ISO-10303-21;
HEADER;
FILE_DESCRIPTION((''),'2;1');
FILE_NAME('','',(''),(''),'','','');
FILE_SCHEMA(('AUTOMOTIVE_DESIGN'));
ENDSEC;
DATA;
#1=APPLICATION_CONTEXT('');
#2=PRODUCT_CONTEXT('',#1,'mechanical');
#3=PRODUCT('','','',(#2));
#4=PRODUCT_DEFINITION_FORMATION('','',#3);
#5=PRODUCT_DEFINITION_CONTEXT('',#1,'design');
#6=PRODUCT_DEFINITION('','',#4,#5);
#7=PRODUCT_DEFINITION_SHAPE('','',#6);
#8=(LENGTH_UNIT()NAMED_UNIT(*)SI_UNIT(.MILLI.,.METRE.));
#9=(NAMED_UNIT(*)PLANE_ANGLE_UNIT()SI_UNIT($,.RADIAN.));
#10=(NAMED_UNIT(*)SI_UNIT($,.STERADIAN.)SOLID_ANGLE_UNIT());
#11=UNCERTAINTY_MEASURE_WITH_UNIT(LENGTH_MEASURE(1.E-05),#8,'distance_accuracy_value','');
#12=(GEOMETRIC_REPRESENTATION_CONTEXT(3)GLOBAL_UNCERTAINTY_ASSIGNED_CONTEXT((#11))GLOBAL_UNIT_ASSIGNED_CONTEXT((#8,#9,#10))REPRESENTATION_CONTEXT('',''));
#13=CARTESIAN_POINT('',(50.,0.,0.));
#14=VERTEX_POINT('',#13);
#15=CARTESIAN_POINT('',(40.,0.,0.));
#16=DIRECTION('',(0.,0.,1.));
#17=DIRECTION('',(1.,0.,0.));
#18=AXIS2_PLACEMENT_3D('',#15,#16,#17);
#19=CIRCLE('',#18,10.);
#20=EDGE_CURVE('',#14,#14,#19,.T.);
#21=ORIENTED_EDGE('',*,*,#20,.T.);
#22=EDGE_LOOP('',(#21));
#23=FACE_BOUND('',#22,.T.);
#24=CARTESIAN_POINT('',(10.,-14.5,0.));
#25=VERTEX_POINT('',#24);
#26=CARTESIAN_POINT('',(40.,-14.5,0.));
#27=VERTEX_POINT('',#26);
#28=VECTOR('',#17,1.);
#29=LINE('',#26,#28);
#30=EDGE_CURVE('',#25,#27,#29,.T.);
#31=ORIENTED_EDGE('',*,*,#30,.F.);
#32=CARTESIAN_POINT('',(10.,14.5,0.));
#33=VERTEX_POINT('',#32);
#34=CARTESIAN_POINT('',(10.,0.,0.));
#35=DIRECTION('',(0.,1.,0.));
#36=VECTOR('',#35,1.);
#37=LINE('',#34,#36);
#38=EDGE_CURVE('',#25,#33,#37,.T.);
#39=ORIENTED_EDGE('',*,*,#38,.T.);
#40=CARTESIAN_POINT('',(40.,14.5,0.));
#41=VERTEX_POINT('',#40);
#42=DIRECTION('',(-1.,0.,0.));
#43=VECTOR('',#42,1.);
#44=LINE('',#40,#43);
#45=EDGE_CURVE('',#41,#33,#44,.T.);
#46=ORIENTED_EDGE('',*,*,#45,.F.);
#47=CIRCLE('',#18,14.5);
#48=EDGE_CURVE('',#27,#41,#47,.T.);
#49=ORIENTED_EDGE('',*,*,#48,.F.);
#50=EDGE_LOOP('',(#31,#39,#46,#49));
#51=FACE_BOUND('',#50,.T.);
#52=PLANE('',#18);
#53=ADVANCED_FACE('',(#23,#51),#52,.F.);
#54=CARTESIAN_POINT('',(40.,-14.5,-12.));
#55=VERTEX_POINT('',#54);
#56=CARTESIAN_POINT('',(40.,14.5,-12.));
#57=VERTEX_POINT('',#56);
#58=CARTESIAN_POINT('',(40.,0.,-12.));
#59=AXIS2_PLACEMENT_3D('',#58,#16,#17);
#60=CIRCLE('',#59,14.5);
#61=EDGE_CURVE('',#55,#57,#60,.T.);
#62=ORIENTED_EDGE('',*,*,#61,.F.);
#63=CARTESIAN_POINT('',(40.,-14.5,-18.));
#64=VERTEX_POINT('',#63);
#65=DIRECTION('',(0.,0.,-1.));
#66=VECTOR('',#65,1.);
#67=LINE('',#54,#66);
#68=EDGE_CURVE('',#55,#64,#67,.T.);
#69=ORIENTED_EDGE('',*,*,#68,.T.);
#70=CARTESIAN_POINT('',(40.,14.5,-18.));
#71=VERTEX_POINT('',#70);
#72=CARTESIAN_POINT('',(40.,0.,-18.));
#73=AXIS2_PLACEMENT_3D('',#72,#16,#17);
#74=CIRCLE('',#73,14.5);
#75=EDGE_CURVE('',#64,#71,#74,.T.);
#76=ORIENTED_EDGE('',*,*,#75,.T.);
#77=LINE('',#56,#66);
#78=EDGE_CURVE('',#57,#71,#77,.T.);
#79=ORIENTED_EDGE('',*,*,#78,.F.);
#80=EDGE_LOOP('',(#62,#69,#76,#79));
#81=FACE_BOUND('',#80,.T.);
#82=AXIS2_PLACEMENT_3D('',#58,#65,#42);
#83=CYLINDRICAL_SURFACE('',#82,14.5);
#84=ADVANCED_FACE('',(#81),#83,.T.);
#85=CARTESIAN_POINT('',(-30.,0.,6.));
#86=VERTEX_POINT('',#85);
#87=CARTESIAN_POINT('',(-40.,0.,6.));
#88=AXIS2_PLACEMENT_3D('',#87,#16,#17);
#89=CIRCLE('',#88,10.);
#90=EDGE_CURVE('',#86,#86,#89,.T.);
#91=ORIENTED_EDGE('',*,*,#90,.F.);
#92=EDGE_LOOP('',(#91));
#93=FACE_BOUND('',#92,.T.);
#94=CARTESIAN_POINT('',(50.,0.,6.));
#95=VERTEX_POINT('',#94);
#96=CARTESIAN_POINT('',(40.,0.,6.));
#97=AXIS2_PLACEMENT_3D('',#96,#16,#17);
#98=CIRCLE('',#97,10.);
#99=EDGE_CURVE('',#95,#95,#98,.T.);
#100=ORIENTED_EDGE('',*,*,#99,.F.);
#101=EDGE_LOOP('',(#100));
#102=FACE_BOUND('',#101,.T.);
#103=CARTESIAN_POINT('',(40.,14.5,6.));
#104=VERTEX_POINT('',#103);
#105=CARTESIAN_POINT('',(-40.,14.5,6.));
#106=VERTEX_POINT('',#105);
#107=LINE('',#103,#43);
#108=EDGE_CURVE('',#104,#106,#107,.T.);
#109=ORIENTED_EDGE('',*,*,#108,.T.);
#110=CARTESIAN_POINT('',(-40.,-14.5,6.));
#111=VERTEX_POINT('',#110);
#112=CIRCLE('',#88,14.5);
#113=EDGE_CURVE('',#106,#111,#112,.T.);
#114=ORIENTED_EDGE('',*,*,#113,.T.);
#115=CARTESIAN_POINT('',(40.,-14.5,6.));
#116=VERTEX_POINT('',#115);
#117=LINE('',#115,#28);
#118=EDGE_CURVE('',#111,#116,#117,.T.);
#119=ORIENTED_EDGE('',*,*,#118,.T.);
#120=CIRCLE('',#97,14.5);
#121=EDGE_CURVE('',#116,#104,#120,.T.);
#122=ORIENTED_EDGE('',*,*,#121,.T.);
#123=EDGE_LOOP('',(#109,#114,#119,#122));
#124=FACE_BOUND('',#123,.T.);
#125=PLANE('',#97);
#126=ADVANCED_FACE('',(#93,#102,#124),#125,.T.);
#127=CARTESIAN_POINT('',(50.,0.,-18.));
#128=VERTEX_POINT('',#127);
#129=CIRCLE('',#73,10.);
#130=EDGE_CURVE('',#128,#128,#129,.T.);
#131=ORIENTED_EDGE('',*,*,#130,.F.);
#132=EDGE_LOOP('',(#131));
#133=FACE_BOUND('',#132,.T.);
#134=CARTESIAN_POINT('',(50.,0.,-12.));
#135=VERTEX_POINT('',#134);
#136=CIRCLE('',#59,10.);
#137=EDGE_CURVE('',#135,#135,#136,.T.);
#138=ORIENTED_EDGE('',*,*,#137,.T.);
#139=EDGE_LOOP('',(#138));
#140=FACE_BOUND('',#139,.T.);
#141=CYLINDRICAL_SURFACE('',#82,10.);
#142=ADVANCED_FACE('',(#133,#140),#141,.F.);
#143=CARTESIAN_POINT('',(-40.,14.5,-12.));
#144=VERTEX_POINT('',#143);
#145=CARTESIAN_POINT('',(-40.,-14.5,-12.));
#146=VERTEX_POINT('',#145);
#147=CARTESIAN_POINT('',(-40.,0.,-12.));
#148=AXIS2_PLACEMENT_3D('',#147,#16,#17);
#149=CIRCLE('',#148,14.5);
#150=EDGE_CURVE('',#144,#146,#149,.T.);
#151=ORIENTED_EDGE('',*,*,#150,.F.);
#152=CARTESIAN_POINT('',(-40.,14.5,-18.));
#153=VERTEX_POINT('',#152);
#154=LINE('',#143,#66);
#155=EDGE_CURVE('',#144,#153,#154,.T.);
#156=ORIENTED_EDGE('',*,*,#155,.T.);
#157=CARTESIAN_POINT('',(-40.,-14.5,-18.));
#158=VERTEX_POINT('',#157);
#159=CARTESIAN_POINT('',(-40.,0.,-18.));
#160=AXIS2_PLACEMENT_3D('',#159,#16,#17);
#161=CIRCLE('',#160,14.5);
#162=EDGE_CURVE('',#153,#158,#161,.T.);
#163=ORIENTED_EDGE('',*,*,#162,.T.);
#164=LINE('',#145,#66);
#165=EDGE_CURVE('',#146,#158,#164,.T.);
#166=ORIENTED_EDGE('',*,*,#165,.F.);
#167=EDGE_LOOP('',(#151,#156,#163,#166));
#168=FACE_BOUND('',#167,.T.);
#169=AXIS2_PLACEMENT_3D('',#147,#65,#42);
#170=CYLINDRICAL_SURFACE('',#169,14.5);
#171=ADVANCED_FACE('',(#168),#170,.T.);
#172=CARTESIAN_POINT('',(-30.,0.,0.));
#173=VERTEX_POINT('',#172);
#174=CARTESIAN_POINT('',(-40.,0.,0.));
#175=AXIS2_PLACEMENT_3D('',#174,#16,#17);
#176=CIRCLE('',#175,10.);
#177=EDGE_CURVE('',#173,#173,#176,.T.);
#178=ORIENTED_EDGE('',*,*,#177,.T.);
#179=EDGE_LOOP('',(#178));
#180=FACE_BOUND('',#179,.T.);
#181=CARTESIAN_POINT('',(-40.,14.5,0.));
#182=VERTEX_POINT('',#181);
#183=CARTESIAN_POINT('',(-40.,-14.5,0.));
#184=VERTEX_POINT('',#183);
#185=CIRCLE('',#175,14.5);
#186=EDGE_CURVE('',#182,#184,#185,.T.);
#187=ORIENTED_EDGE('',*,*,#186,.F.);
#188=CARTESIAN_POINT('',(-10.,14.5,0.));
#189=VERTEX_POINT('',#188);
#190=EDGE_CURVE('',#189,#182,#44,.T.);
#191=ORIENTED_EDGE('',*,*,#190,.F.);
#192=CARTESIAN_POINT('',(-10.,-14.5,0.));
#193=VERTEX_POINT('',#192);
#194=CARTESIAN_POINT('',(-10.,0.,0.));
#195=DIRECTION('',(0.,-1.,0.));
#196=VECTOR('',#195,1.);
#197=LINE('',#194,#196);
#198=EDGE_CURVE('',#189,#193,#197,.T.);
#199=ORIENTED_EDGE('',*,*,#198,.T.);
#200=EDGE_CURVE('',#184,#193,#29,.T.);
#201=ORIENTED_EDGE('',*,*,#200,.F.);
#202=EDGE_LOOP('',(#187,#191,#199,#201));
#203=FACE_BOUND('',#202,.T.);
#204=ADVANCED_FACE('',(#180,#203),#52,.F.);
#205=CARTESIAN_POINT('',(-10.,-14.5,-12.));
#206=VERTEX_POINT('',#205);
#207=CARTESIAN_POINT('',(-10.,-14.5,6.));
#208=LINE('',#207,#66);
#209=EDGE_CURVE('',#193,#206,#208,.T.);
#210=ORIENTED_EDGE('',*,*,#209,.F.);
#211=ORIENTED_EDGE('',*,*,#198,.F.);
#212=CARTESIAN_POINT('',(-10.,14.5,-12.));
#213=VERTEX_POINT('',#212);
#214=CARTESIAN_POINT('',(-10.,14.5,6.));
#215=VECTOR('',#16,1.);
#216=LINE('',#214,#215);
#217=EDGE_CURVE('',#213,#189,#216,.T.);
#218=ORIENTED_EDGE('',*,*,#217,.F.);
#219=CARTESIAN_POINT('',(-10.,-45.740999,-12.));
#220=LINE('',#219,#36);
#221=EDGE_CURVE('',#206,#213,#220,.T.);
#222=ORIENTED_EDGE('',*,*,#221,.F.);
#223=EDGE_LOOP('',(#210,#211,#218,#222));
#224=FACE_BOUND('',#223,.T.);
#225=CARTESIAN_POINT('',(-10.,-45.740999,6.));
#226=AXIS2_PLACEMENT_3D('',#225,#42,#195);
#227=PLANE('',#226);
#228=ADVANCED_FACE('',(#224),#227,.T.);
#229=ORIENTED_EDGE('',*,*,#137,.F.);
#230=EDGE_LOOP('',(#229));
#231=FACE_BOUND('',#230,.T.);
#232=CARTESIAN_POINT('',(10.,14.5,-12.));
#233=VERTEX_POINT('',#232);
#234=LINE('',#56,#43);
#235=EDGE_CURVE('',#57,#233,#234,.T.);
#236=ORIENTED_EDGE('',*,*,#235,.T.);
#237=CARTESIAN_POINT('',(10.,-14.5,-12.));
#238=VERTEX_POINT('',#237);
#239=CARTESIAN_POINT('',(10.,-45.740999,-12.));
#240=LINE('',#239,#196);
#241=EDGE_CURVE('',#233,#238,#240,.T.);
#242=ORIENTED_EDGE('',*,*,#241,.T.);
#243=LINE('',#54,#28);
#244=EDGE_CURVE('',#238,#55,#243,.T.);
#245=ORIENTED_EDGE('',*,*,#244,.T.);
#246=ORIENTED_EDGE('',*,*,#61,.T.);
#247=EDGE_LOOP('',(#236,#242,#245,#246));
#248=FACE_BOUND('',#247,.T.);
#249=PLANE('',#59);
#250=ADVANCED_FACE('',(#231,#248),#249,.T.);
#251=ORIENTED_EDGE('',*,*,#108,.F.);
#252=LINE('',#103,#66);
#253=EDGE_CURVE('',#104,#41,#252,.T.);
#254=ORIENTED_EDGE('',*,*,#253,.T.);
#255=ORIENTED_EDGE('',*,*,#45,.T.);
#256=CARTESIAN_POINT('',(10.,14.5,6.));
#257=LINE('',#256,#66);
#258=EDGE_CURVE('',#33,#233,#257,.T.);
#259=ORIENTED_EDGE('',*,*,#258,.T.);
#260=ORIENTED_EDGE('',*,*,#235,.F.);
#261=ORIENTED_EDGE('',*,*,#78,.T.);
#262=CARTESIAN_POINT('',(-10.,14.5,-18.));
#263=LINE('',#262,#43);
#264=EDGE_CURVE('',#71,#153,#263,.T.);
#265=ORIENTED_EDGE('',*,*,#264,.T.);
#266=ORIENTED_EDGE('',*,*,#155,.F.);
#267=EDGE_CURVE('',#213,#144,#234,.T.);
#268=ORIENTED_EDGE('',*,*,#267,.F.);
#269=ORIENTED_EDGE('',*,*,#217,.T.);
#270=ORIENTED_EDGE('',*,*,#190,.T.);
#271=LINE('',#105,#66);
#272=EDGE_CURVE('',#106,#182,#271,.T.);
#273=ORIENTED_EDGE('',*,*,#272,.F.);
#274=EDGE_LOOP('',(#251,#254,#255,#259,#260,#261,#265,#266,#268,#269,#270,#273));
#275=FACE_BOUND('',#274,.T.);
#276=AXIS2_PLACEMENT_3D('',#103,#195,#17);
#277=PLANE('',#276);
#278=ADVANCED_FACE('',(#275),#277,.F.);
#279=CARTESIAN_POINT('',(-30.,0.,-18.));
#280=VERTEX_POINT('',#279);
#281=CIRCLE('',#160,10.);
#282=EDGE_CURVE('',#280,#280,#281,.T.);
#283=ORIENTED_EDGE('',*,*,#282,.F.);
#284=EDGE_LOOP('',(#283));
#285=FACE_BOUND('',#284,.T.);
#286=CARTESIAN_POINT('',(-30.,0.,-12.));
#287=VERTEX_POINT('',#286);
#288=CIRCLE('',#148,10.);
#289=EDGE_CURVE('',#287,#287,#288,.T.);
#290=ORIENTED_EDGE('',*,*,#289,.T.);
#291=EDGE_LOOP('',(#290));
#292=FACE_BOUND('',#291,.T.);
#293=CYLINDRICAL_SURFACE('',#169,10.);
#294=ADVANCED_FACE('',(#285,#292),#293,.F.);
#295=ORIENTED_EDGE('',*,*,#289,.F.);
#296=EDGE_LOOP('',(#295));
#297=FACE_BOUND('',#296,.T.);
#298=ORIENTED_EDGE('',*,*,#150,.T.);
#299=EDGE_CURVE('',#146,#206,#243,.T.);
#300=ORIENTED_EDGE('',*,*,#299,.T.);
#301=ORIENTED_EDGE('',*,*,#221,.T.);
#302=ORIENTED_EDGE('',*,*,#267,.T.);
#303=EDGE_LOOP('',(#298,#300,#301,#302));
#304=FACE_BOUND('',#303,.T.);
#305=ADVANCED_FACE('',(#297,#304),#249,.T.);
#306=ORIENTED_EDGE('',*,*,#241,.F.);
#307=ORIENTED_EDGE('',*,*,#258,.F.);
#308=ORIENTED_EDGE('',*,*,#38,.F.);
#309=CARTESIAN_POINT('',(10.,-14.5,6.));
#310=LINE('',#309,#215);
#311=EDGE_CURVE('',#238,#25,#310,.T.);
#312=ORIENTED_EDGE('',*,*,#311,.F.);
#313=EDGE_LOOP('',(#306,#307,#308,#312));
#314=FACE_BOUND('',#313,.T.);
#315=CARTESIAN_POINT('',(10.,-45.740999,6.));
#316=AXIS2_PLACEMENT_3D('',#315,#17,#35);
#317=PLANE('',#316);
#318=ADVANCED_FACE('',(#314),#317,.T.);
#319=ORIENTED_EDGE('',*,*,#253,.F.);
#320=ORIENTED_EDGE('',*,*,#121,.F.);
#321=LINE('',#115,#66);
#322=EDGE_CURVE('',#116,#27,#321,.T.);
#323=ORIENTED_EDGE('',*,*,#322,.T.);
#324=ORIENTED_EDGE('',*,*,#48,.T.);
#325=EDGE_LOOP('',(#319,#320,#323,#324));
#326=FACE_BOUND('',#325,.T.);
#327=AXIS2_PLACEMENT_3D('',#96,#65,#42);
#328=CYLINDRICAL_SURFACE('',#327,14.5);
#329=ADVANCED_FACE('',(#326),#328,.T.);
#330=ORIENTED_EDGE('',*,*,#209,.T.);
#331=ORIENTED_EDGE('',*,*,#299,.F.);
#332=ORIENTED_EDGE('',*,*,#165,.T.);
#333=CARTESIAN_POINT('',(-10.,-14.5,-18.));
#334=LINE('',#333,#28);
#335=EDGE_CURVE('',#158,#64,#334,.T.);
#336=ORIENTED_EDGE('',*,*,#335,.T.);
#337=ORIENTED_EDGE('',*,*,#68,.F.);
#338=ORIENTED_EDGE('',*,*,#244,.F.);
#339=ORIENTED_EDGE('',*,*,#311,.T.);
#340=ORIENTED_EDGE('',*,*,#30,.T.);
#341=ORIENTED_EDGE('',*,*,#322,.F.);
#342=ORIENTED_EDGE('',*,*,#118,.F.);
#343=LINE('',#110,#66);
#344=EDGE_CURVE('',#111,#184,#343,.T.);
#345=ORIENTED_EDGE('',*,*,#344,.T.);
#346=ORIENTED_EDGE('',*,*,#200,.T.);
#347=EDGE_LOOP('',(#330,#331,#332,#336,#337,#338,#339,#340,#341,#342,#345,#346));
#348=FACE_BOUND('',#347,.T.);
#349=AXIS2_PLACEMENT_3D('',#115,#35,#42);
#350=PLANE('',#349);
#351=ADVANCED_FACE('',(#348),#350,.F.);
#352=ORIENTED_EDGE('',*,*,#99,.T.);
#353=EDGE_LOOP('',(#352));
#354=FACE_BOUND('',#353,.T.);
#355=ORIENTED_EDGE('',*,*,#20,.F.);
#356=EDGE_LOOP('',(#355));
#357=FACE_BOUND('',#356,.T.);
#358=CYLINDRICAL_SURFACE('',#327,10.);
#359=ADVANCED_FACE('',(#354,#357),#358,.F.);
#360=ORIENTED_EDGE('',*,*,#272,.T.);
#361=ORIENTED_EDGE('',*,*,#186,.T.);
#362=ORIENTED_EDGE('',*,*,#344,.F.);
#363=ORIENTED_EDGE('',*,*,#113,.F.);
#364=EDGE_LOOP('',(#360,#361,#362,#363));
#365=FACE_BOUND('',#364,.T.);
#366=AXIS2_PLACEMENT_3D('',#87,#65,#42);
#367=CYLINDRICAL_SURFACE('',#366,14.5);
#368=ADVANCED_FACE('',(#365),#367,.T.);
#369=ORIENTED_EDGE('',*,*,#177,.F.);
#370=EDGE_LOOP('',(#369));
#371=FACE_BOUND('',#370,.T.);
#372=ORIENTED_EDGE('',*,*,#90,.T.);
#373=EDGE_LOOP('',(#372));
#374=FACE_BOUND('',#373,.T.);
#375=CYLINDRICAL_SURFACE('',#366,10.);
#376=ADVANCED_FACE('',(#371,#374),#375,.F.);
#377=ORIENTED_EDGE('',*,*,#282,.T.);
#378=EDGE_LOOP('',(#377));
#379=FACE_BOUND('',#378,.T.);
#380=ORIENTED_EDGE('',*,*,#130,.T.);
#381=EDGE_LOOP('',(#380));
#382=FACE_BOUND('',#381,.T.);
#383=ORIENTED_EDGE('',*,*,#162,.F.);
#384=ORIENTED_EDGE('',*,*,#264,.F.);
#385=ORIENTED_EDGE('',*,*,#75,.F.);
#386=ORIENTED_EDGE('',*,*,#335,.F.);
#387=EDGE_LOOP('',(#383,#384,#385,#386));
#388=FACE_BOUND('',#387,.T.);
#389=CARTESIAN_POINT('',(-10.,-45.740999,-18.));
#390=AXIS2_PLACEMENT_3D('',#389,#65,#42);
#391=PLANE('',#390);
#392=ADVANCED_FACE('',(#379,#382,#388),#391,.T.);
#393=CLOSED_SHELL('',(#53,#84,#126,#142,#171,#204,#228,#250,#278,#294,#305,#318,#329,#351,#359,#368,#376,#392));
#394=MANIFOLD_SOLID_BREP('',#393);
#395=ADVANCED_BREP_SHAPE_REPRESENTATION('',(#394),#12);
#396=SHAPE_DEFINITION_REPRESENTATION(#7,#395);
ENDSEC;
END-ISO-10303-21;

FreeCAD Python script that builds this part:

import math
import FreeCAD as App
import Part
import Sketcher

V = App.Vector


def add_polygon(sketch, points):
    """Adds a closed chain of lines whose ends are joined by coincident constraints."""
    first, n = sketch.GeometryCount, len(points)
    for a, b in zip(points, points[1:] + points[:1]):
        sketch.addGeometry(Part.LineSegment(App.Vector(*a, 0), App.Vector(*b, 0)), False)
    for i in range(n):
        sketch.addConstraint(Sketcher.Constraint("Coincident", first + i, 2, first + (i + 1) % n, 1))

doc = App.newDocument("Part")
body = doc.addObject("PartDesign::Body", "Body")

# Sketch on XY plane
sketch1 = doc.addObject("Sketcher::SketchObject", "Sketch")
body.addObject(sketch1)
sketch1.AttachmentSupport = (doc.XY_Plane, [""])
sketch1.MapMode = "FlatFace"
sketch1.addGeometry(Part.LineSegment(V(-40, -14, 0), V(40, -14, 0)), False)
sketch1.addGeometry(Part.ArcOfCircle(Part.Circle(V(40, 0, 0), V(0, 0, 1), 14), math.radians(-90), math.radians(90)), False)
sketch1.addGeometry(Part.LineSegment(V(40, 14, 0), V(-40, 14, 0)), False)
sketch1.addGeometry(Part.ArcOfCircle(Part.Circle(V(-40, 0, 0), V(0, 0, 1), 14), math.radians(90), math.radians(270)), False)
sketch1.addGeometry(Part.Circle(V(40, 0, 0), V(0, 0, 1), 10), False)
sketch1.addGeometry(Part.Circle(V(-40, 0, 0), V(0, 0, 1), 10), False)
sketch1.addConstraint(Sketcher.Constraint("Tangent", 0, 2, 1, 1))
sketch1.addConstraint(Sketcher.Constraint("Tangent", 1, 2, 2, 1))
sketch1.addConstraint(Sketcher.Constraint("Tangent", 2, 2, 3, 1))
sketch1.addConstraint(Sketcher.Constraint("Tangent", 3, 2, 0, 1))
sketch1.addConstraint(Sketcher.Constraint("Horizontal", 0))
sketch1.addConstraint(Sketcher.Constraint("Horizontal", 2))
sketch1.addConstraint(Sketcher.Constraint("Coincident", 4, 3, 1, 3))
sketch1.addConstraint(Sketcher.Constraint("Coincident", 5, 3, 3, 3))
sketch1.addConstraint(Sketcher.Constraint("Equal", 4, 5))
sketch1.addConstraint(Sketcher.Constraint("Symmetric", 1, 3, 3, 3, -1, 1))
sketch1.addConstraint(Sketcher.Constraint("Diameter", 4, 20.0))
sketch1.addConstraint(Sketcher.Constraint("Radius", 1, 14.5))
sketch1.addConstraint(Sketcher.Constraint("DistanceX", 0, 1, 0, 2, 80.0))
pad1 = doc.addObject("PartDesign::Pad", "Pad")
body.addObject(pad1)
pad1.Profile = sketch1
pad1.Length = 6
body2 = doc.addObject("PartDesign::Body", "Body001")

# Sketch on XY plane
sketch2 = doc.addObject("Sketcher::SketchObject", "Sketch001")
body2.addObject(sketch2)
sketch2.AttachmentSupport = (doc.getObject("XY_Plane001"), [""])
sketch2.MapMode = "FlatFace"
sketch2.AttachmentOffset = App.Placement(V(0, 0, -18), App.Rotation())
sketch2.addGeometry(Part.LineSegment(V(-40, -14, 0), V(40, -14, 0)), False)
sketch2.addGeometry(Part.ArcOfCircle(Part.Circle(V(40, 0, 0), V(0, 0, 1), 14), math.radians(-90), math.radians(90)), False)
sketch2.addGeometry(Part.LineSegment(V(40, 14, 0), V(-40, 14, 0)), False)
sketch2.addGeometry(Part.ArcOfCircle(Part.Circle(V(-40, 0, 0), V(0, 0, 1), 14), math.radians(90), math.radians(270)), False)
sketch2.addGeometry(Part.Circle(V(40, 0, 0), V(0, 0, 1), 10), False)
sketch2.addGeometry(Part.Circle(V(-40, 0, 0), V(0, 0, 1), 10), False)
sketch2.addConstraint(Sketcher.Constraint("Tangent", 0, 2, 1, 1))
sketch2.addConstraint(Sketcher.Constraint("Tangent", 1, 2, 2, 1))
sketch2.addConstraint(Sketcher.Constraint("Tangent", 2, 2, 3, 1))
sketch2.addConstraint(Sketcher.Constraint("Tangent", 3, 2, 0, 1))
sketch2.addConstraint(Sketcher.Constraint("Horizontal", 0))
sketch2.addConstraint(Sketcher.Constraint("Horizontal", 2))
sketch2.addConstraint(Sketcher.Constraint("Coincident", 4, 3, 1, 3))
sketch2.addConstraint(Sketcher.Constraint("Coincident", 5, 3, 3, 3))
sketch2.addConstraint(Sketcher.Constraint("Equal", 4, 5))
sketch2.addConstraint(Sketcher.Constraint("Symmetric", 1, 3, 3, 3, -1, 1))
sketch2.addConstraint(Sketcher.Constraint("Diameter", 4, 20.0))
sketch2.addConstraint(Sketcher.Constraint("Radius", 1, 14.5))
sketch2.addConstraint(Sketcher.Constraint("DistanceX", 0, 1, 0, 2, 80.0))
pad2 = doc.addObject("PartDesign::Pad", "Pad001")
body2.addObject(pad2)
pad2.Profile = sketch2
pad2.Length = 6
body.AllowCompound = True
doc.recompute()

boolean = doc.addObject("PartDesign::Boolean", "Boolean")
body.addObject(boolean)
boolean.Type = "Fuse"
boolean.addObjects([body2])

# Sketch on XZ plane
sketch3 = doc.addObject("Sketcher::SketchObject", "Sketch002")
body.addObject(sketch3)
sketch3.AttachmentSupport = (doc.XZ_Plane, [""])
sketch3.MapMode = "FlatFace"
sketch3.AttachmentOffset = App.Placement(V(0, 0, -14.5), App.Rotation())
add_polygon(sketch3, [(-10, -18), (-10, 6), (10, 6), (10, -18)])  # lines 0-3
sketch3.addConstraint(Sketcher.Constraint("Vertical", 0))
sketch3.addConstraint(Sketcher.Constraint("Horizontal", 1))
sketch3.addConstraint(Sketcher.Constraint("Vertical", 2))
sketch3.addConstraint(Sketcher.Constraint("Horizontal", 3))
sketch3.addConstraint(Sketcher.Constraint("DistanceX", 1, 1, 1, 2, 20.0))
sketch3.addConstraint(Sketcher.Constraint("DistanceY", 0, 1, 0, 2, 24.0))
sketch3.addConstraint(Sketcher.Constraint("DistanceX", 0, 2, -1, 1, 10.0))
sketch3.addConstraint(Sketcher.Constraint("DistanceY", -1, 1, 0, 2, 6.0))
pad3 = doc.addObject("PartDesign::Pad", "Pad002")
body.addObject(pad3)
pad3.Profile = sketch3
pad3.Length = 29

doc.recompute()
